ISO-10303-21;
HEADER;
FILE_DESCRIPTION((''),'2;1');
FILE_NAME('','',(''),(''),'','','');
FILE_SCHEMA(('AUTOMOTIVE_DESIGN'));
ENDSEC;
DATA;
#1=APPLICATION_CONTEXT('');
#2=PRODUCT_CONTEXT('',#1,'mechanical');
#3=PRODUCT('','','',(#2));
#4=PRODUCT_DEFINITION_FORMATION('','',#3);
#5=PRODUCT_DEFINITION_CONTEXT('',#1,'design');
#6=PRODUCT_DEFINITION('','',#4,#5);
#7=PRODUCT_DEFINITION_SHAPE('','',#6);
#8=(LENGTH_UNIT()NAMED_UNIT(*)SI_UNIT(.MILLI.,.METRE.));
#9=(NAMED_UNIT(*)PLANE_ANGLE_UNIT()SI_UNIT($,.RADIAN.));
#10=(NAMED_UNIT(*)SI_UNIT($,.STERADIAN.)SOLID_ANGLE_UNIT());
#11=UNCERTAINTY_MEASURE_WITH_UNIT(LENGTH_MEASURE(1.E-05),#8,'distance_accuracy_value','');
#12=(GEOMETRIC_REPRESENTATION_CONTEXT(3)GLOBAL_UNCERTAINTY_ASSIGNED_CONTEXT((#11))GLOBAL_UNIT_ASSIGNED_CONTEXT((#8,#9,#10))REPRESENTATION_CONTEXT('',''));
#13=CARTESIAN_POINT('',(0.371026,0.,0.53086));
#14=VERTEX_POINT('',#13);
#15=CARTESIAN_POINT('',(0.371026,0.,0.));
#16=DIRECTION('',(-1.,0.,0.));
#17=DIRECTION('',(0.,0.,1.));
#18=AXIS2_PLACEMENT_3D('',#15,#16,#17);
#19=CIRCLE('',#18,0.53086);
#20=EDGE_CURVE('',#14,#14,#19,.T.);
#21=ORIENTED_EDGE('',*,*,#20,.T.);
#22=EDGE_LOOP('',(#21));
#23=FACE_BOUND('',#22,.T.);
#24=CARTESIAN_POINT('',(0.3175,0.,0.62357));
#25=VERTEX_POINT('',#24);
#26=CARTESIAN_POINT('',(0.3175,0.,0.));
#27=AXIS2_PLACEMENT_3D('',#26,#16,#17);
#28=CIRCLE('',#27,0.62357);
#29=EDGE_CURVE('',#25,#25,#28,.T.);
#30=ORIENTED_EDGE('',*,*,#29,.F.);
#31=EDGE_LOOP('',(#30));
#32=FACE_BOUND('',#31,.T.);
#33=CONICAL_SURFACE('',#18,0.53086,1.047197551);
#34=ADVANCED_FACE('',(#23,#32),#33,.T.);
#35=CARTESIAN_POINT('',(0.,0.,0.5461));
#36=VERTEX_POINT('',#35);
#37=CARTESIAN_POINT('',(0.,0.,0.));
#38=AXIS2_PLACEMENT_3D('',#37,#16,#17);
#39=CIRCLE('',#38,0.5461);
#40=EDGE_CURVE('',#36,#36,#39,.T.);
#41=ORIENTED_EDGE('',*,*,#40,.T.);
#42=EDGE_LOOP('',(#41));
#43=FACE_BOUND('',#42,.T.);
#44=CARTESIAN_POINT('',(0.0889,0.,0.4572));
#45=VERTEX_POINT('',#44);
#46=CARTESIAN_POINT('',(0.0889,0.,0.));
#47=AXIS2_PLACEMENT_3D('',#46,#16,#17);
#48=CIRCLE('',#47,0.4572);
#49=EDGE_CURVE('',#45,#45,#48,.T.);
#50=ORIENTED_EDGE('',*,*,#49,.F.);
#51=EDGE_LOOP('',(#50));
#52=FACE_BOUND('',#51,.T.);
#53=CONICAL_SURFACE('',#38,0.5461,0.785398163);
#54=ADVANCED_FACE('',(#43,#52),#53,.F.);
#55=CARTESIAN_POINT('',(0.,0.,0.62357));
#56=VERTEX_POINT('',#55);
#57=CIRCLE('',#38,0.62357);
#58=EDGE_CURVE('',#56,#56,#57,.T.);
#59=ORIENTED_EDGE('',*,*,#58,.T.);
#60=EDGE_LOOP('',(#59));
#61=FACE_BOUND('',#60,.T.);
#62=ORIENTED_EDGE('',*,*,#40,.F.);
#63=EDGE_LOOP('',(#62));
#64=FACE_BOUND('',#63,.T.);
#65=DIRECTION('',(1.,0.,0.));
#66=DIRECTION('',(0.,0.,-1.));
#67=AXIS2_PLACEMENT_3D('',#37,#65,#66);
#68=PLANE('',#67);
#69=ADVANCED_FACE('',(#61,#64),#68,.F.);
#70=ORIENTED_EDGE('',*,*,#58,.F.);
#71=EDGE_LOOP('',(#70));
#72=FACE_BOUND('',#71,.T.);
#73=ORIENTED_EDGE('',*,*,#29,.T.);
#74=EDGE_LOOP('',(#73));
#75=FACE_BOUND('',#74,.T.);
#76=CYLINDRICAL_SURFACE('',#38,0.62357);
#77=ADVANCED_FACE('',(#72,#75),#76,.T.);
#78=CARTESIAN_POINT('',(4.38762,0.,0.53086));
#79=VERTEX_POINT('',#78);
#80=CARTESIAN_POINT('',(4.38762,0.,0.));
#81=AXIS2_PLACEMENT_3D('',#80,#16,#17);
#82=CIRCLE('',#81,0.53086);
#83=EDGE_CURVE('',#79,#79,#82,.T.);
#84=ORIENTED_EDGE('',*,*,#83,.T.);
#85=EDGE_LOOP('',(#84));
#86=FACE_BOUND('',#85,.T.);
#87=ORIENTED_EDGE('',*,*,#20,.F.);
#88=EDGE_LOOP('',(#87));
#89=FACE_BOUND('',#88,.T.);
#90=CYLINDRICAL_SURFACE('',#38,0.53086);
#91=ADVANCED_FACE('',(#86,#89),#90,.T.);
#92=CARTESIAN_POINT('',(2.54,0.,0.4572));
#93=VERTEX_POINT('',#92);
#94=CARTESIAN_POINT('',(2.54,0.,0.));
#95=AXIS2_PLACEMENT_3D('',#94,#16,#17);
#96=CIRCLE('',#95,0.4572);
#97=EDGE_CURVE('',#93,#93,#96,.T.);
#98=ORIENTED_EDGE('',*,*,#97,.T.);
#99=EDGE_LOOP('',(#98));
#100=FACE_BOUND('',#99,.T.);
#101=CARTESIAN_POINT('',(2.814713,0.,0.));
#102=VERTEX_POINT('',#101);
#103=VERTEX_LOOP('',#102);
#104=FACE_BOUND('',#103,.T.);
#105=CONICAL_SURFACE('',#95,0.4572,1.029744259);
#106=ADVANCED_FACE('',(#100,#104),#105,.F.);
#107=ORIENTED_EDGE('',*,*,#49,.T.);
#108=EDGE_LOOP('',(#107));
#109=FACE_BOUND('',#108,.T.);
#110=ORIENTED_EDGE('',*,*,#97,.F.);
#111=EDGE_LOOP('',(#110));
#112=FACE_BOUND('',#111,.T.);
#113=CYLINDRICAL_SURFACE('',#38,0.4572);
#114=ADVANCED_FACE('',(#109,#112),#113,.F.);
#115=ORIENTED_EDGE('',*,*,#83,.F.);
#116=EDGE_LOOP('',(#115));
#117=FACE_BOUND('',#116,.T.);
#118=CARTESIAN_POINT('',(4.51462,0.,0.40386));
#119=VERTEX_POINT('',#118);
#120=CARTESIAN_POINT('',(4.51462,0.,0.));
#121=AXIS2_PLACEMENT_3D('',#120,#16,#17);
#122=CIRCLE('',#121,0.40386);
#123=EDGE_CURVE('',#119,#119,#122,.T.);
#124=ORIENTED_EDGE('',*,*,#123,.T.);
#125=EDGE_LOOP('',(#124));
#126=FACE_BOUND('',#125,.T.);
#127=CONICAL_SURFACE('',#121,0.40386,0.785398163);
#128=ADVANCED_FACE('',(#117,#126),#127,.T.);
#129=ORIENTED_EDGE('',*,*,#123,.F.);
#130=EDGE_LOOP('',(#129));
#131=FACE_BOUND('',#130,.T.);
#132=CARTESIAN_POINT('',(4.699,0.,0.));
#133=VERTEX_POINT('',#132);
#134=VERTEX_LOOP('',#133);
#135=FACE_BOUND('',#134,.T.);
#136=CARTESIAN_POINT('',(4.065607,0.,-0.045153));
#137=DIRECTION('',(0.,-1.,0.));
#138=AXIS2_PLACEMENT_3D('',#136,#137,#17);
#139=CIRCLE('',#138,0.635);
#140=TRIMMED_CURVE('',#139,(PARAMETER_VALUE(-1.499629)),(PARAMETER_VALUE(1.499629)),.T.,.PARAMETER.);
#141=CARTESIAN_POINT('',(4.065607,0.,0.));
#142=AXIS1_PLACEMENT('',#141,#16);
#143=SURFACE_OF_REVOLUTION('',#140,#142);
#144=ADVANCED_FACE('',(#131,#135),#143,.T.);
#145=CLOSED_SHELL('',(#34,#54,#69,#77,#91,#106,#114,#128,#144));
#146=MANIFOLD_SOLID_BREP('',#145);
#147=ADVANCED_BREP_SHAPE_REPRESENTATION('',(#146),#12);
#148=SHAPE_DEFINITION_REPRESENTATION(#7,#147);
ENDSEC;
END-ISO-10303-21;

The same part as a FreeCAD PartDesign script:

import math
import FreeCAD as App
import Part
import Sketcher
from FreeCAD import Vector
Q = App.Units.Quantity

doc = App.newDocument("Part")
body = doc.addObject("PartDesign::Body", "Body")

sketch1 = body.newObject("Sketcher::SketchObject", "Sketch")
sketch1.AttachmentSupport = (doc.getObject("XY_Plane"), [""])
sketch1.MapMode = "FlatFace"
sketch1.addGeometry([
    Part.LineSegment(Vector(0, 0.62, 0), Vector(0, 0, 0)),
    Part.LineSegment(Vector(0, 0, 0), Vector(4.7, 0, 0)),
    Part.ArcOfCircle(Part.Circle(Vector(4.07, -0.05, 0), Vector(0, 0, 1), 0.64), math.radians(4), math.radians(45)),
    Part.LineSegment(Vector(4.51, 0.4, 0), Vector(4.39, 0.53, 0)),
    Part.LineSegment(Vector(4.39, 0.53, 0), Vector(0.37, 0.53, 0)),
    Part.LineSegment(Vector(0.37, 0.53, 0), Vector(0.32, 0.62, 0)),
    Part.LineSegment(Vector(0.32, 0.62, 0), Vector(0, 0.62, 0)),
], False)
sketch1.addConstraint([
    Sketcher.Constraint("Coincident", 0, 2, 1, 1),
    Sketcher.Constraint("Coincident", 1, 2, 2, 1),
    Sketcher.Constraint("Tangent", 2, 2, 3, 1),
    Sketcher.Constraint("Coincident", 3, 2, 4, 1),
    Sketcher.Constraint("Coincident", 4, 2, 5, 1),
    Sketcher.Constraint("Coincident", 5, 2, 6, 1),
    Sketcher.Constraint("Coincident", 6, 2, 0, 1),
    Sketcher.Constraint("Vertical", 0),
    Sketcher.Constraint("Horizontal", 1),
    Sketcher.Constraint("Horizontal", 4),
    Sketcher.Constraint("Horizontal", 6),
    Sketcher.Constraint("Coincident", 0, 2, -1, 1),
    Sketcher.Constraint("Angle", 3, Q("135 deg")),
    Sketcher.Constraint("Angle", 5, Q("120 deg")),
    Sketcher.Constraint("Radius", 2, Q("0.025 in")),
    Sketcher.Constraint("DistanceX", 1, 1, 1, 2, Q("0.185 in")),
    Sketcher.Constraint("DistanceX", 6, 2, 6, 1, Q("0.0125 in")),
    Sketcher.Constraint("DistanceX", 3, 2, 2, 2, Q("0.005 in")),
    Sketcher.Constraint("DistanceY", -1, 1, 2, 2, Q("0.0159 in")),
    Sketcher.Constraint("DistanceY", 0, 2, 0, 1, Q("0.62357 mm")),
])
revolution = body.newObject("PartDesign::Revolution", "Revolution")
revolution.Profile = sketch1
revolution.ReferenceAxis = (sketch1, ["H_Axis"])
revolution.Angle = 360

sketch2 = body.newObject("Sketcher::SketchObject", "Sketch001")
sketch2.AttachmentSupport = (doc.getObject("YZ_Plane"), [""])
sketch2.MapMode = "FlatFace"
sketch2.addGeometry(Part.Circle(Vector(0, 0, 0), Vector(0, 0, 1), 0.46), False)
sketch2.addConstraint([
    Sketcher.Constraint("Coincident", 0, 3, -1, 1),
    Sketcher.Constraint("Diameter", 0, Q("0.036 in")),
])
doc.recompute()
hole = body.newObject("PartDesign::Hole", "Hole")
hole.Profile = sketch2
hole.ThreadType = "None"
hole.Diameter = Q("0.036 in")
hole.DepthType = "Dimension"
hole.Depth = Q("0.1 in")
hole.DrillPoint = "Angled"
hole.DrillPointAngle = 118
hole.HoleCutType = "Countersink"
hole.HoleCutDiameter = Q("0.043 in")
hole.HoleCutCountersinkAngle = 90
hole.Reversed = True

doc.recompute()
